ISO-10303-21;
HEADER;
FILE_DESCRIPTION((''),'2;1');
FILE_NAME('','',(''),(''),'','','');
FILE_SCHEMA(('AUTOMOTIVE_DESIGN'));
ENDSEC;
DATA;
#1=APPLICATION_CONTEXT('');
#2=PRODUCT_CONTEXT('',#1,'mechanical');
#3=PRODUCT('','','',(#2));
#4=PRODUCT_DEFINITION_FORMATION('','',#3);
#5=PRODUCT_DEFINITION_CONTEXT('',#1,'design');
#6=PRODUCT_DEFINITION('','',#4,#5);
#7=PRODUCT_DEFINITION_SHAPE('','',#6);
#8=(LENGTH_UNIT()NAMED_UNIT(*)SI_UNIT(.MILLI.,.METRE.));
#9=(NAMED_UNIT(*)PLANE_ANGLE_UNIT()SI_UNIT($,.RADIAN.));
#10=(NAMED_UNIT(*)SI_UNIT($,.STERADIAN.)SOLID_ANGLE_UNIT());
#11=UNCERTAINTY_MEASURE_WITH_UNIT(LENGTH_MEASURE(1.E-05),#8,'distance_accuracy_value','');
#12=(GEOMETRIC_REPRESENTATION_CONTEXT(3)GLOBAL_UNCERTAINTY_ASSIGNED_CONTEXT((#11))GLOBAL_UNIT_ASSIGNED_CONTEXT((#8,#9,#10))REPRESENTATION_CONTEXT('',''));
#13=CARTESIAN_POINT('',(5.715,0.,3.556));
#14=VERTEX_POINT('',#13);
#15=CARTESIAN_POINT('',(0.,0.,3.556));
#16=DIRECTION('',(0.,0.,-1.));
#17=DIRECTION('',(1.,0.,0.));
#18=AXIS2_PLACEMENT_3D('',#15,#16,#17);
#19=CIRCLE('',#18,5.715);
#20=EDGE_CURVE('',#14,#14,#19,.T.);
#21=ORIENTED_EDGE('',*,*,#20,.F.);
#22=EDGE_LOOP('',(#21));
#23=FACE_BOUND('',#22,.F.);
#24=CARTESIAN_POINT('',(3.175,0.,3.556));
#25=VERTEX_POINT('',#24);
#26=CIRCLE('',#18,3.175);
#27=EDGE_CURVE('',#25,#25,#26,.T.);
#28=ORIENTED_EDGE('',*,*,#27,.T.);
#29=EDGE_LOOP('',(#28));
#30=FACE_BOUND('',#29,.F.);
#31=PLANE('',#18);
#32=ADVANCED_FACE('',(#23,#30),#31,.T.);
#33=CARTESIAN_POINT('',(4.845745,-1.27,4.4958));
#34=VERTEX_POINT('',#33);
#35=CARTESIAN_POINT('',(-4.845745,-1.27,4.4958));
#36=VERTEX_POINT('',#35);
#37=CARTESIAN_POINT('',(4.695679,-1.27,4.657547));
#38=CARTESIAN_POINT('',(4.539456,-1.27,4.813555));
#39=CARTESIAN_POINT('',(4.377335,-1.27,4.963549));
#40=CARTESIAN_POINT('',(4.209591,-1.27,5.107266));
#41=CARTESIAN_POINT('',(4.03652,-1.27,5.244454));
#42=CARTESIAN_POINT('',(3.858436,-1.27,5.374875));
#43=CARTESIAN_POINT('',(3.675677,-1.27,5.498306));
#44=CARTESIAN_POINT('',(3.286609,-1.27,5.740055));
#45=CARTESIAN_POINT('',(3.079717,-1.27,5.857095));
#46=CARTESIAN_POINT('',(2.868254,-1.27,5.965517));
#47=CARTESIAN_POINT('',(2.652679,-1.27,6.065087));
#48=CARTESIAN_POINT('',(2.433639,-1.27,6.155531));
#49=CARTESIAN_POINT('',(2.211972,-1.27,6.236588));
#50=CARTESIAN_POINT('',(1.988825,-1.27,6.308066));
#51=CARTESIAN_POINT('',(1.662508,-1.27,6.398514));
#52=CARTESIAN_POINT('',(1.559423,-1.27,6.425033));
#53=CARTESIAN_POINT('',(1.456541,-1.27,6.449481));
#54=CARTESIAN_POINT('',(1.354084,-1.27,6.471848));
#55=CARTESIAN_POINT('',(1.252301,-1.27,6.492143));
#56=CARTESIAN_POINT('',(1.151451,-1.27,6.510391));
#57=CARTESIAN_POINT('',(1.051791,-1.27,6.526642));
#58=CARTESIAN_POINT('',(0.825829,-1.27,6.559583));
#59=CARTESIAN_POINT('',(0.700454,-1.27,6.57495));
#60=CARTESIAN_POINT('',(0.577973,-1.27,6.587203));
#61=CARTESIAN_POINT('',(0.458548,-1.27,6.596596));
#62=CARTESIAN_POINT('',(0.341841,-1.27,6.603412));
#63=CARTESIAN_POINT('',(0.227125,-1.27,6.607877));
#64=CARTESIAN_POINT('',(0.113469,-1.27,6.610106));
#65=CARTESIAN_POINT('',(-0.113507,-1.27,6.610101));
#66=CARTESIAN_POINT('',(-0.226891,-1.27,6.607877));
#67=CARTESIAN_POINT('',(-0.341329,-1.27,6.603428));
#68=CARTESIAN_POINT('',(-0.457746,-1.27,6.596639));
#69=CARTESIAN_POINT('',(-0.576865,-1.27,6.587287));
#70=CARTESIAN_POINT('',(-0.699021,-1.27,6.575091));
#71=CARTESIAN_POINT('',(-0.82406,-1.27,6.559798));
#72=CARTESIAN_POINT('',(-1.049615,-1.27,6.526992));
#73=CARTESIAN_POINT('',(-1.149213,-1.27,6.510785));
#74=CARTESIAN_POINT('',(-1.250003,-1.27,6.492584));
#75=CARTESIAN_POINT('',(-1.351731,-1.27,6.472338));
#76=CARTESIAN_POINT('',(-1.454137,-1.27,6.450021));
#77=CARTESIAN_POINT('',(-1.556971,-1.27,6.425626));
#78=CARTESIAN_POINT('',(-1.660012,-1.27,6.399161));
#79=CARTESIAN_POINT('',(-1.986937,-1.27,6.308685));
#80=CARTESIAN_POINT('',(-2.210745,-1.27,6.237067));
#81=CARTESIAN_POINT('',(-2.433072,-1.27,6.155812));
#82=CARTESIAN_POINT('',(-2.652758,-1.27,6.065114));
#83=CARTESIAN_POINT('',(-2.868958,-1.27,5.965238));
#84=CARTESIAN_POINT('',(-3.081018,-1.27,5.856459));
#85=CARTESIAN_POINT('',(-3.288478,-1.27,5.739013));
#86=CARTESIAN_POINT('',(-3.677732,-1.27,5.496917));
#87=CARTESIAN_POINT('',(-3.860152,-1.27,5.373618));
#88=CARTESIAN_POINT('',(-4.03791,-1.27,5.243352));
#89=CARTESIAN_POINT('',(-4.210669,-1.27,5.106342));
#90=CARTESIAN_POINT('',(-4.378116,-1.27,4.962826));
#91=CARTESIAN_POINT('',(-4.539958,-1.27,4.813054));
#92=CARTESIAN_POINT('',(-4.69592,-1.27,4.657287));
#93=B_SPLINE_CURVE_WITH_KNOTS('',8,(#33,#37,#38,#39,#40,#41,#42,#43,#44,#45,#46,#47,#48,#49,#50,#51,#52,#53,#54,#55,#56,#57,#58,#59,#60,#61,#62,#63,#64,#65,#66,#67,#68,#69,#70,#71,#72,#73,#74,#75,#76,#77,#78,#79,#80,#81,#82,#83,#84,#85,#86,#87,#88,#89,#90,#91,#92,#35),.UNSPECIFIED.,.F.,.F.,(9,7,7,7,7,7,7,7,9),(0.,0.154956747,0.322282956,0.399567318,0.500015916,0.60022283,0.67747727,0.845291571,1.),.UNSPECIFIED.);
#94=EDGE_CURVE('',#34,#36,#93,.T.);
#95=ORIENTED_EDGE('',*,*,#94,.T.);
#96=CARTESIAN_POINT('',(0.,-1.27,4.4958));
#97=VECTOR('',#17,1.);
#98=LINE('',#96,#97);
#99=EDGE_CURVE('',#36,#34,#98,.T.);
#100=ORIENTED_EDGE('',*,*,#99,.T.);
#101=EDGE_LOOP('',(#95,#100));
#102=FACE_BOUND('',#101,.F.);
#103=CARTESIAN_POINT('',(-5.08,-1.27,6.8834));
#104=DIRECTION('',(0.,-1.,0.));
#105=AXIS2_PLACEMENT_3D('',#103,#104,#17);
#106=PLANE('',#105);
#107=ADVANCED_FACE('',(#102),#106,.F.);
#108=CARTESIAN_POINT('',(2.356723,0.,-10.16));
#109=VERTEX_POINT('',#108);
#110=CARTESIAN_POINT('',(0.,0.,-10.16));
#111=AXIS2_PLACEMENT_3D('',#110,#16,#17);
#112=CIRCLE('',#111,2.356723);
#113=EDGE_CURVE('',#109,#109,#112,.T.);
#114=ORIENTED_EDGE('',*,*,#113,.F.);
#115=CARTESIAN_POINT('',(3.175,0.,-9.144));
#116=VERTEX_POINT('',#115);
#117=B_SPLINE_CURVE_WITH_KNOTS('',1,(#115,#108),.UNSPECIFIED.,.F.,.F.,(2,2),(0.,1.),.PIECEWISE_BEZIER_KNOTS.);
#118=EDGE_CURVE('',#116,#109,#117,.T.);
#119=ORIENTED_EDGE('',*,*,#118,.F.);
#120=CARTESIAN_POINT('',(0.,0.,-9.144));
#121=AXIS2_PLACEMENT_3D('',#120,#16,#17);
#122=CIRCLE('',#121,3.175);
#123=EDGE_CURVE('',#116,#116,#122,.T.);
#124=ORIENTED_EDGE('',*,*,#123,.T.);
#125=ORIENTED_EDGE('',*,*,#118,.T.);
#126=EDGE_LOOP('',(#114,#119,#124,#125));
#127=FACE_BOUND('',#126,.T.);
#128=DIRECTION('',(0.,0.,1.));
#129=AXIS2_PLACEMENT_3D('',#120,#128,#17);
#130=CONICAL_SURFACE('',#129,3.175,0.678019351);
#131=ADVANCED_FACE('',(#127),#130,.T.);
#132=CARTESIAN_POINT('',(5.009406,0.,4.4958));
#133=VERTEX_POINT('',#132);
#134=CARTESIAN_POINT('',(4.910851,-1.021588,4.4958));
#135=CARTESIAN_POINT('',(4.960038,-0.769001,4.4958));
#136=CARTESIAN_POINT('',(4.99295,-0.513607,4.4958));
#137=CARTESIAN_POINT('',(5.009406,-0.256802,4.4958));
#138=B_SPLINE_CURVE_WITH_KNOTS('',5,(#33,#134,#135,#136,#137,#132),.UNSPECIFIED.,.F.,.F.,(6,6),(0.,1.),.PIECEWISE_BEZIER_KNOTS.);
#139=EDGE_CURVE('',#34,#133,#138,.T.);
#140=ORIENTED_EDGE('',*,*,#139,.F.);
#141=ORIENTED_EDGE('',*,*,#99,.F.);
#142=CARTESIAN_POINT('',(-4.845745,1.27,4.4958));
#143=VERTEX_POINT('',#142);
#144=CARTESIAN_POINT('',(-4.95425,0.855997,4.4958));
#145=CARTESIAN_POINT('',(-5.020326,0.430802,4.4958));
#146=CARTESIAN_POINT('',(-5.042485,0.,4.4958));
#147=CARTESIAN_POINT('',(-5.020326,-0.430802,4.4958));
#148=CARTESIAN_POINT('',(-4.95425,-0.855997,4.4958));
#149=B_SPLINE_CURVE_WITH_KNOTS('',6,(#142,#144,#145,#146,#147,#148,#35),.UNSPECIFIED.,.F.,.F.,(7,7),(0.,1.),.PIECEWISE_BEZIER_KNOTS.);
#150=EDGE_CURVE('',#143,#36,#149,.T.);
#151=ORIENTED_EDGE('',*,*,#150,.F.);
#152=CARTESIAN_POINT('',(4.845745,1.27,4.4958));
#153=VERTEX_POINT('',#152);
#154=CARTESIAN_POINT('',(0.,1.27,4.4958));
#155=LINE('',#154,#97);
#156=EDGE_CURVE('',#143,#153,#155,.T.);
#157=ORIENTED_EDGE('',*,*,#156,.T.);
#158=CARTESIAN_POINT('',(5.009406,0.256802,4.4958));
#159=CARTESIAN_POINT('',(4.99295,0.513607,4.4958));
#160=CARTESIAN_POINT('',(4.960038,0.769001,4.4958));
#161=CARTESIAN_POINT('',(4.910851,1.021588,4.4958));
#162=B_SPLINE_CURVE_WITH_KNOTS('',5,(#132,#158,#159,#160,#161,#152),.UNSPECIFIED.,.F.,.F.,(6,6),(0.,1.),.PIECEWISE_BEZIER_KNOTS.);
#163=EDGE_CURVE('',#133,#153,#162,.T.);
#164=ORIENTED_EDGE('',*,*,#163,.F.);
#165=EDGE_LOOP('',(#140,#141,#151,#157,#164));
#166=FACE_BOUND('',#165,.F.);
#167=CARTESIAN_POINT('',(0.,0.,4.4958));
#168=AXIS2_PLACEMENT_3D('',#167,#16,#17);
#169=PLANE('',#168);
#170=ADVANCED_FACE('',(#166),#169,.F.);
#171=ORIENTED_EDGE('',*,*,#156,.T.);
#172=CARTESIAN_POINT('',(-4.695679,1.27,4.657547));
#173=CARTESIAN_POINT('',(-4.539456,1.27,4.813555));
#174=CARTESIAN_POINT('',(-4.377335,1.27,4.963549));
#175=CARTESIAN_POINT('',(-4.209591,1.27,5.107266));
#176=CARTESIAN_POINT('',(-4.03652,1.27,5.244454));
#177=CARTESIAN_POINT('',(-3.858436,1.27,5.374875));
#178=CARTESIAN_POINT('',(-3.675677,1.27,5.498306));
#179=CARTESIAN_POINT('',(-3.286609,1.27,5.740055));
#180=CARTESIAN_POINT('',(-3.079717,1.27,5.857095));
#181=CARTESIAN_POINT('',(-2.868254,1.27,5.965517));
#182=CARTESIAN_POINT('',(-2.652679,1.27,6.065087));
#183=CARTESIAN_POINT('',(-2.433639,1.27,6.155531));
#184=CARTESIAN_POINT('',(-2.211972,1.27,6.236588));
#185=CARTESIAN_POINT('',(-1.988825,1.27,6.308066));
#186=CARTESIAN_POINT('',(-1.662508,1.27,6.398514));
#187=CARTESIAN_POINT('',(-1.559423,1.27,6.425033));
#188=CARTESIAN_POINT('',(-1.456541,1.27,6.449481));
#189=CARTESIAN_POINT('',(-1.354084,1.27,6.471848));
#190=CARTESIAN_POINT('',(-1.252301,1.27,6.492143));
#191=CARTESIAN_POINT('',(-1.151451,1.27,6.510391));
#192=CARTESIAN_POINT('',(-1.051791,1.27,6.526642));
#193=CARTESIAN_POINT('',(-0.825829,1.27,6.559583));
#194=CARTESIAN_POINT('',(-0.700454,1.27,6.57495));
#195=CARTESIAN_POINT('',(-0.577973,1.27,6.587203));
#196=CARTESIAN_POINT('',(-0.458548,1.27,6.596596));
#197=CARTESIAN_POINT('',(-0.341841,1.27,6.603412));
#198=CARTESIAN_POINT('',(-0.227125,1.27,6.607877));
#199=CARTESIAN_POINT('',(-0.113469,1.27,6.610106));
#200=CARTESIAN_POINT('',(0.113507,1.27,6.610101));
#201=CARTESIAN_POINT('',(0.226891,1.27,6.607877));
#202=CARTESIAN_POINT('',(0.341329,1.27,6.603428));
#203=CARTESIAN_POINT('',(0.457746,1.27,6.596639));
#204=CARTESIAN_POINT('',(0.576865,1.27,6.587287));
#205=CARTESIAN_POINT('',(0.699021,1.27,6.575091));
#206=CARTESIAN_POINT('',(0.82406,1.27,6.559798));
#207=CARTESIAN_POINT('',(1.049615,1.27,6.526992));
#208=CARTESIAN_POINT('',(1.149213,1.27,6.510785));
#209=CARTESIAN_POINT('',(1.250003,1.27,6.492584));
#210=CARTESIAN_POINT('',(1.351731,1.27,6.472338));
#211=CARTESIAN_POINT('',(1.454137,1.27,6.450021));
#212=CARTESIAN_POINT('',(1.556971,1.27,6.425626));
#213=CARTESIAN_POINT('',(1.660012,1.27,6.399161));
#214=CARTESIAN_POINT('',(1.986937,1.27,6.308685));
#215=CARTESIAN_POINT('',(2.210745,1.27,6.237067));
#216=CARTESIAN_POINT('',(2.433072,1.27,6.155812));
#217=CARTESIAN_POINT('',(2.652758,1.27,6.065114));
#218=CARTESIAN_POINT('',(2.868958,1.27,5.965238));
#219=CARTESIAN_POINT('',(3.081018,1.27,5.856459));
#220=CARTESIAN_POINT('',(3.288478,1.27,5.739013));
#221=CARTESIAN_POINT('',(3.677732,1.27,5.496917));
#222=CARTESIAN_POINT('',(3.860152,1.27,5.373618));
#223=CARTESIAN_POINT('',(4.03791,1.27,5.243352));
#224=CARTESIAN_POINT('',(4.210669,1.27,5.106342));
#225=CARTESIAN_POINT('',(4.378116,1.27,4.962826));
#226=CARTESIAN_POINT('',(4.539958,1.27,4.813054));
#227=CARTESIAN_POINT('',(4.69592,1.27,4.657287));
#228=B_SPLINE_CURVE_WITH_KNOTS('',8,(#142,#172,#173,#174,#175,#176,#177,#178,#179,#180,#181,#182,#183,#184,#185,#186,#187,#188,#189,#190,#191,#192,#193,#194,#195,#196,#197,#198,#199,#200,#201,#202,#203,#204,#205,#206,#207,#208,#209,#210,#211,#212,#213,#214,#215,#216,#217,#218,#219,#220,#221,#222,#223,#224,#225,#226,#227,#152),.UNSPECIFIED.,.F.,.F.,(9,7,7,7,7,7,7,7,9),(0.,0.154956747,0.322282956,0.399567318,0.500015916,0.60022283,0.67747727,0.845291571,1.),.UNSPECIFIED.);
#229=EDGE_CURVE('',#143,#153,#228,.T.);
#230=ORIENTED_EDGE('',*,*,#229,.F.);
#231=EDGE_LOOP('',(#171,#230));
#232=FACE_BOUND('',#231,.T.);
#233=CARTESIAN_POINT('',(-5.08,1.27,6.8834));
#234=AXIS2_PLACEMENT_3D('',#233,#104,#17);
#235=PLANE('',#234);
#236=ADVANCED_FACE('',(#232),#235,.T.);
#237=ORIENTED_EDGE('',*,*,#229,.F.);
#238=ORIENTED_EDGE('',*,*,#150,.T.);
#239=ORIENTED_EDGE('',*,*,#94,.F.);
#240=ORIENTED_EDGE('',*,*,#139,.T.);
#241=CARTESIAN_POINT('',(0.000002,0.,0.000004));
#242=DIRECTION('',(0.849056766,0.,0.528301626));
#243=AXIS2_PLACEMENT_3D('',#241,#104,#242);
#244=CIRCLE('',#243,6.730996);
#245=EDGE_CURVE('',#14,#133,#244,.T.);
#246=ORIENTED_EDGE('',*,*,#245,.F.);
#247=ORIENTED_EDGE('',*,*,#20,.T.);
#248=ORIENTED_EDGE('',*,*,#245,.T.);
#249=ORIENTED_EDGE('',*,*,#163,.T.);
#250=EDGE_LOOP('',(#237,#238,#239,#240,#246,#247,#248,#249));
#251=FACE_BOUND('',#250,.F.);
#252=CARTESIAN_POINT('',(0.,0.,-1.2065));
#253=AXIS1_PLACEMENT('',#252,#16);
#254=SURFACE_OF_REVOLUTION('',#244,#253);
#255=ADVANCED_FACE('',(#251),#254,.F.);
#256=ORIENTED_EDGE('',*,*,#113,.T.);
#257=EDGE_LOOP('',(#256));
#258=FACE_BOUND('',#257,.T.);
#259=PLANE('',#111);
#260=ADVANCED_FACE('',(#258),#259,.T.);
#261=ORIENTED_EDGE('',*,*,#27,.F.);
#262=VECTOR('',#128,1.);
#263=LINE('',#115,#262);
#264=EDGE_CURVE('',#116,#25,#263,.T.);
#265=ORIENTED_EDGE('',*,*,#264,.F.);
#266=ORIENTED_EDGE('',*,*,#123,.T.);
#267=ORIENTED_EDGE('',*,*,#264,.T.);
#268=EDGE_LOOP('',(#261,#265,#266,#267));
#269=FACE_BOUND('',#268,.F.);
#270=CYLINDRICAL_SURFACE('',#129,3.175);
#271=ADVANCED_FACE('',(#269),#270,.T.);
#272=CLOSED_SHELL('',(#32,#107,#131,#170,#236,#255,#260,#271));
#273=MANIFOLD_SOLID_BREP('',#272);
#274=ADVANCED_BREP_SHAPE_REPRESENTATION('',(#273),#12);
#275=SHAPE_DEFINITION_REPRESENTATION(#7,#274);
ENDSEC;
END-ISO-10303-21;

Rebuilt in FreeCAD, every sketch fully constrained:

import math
import FreeCAD as App
import Part
import Sketcher
from FreeCAD import Vector
Q = App.Units.Quantity

doc = App.newDocument("Part")
body = doc.addObject("PartDesign::Body", "Body")

# Sketch on XZ plane
sketch1 = doc.addObject("Sketcher::SketchObject", "Sketch")
body.addObject(sketch1)
sketch1.AttachmentSupport = (doc.XZ_Plane, [""])
sketch1.MapMode = "FlatFace"
sketch1.addGeometry([
    Part.ArcOfCircle(Part.Circle(Vector(0, 0, 0), Vector(0, 0, 1), 6.7), math.radians(32), math.radians(90)),  # 0
    Part.LineSegment(Vector(0, 6.7, 0), Vector(0, -9.1, 0)),  # 1
    Part.LineSegment(Vector(0, -9.1, 0), Vector(3.2, -9.1, 0)),  # 2
    Part.LineSegment(Vector(3.2, -9.1, 0), Vector(3.2, 3.6, 0)),  # 3
    Part.LineSegment(Vector(3.2, 3.6, 0), Vector(5.7, 3.6, 0)),  # 4
], False)
sketch1.addConstraint([
    Sketcher.Constraint("Coincident", 0, 2, 1, 1),
    Sketcher.Constraint("Coincident", 1, 2, 2, 1),
    Sketcher.Constraint("Coincident", 2, 2, 3, 1),
    Sketcher.Constraint("Coincident", 3, 2, 4, 1),
    Sketcher.Constraint("Coincident", 4, 2, 0, 1),
    Sketcher.Constraint("Vertical", 1),
    Sketcher.Constraint("Horizontal", 2),
    Sketcher.Constraint("Vertical", 3),
    Sketcher.Constraint("Horizontal", 4),
    Sketcher.Constraint("Coincident", 0, 3, -1, 1),
    Sketcher.Constraint("PointOnObject", 0, 2, -2),
    Sketcher.Constraint("DistanceX", 4, 1, 4, 2, Q("0.1 in")),
    Sketcher.Constraint("DistanceY", 3, 1, 3, 2, Q("0.5 in")),
    Sketcher.Constraint("Radius", 0, Q("0.2649999 in")),
    Sketcher.Constraint("DistanceX", 2, 1, 2, 2, Q("0.125 in")),
])
revolution = doc.addObject("PartDesign::Revolution", "Revolution")
body.addObject(revolution)
revolution.Profile = sketch1
revolution.ReferenceAxis = (sketch1, ["V_Axis"])
revolution.Angle = 360

# Sketch on XY plane
sketch2 = doc.addObject("Sketcher::SketchObject", "Sketch001")
body.addObject(sketch2)
sketch2.AttachmentSupport = (doc.XY_Plane, [""])
sketch2.MapMode = "FlatFace"
sketch2.AttachmentOffset = App.Placement(Vector(0, 0, -0.36 * 25.4), App.Rotation())
sketch2.addGeometry(Part.Circle(Vector(0, 0, 0), Vector(0, 0, 1), 3.2), False)
sketch2.addConstraint([
    Sketcher.Constraint("Coincident", 0, 3, -1, 1),
    Sketcher.Constraint("Diameter", 0, Q("0.25 in")),
])

# Sketch on XY plane
sketch3 = doc.addObject("Sketcher::SketchObject", "Sketch002")
body.addObject(sketch3)
sketch3.AttachmentSupport = (doc.XY_Plane, [""])
sketch3.MapMode = "FlatFace"
sketch3.AttachmentOffset = App.Placement(Vector(0, 0, -0.4 * 25.4), App.Rotation())
sketch3.addGeometry(Part.Circle(Vector(0, 0, 0), Vector(0, 0, 1), 2.4), False)
sketch3.addConstraint([
    Sketcher.Constraint("Coincident", 0, 3, -1, 1),
    Sketcher.Constraint("Diameter", 0, Q("4.713446 mm")),
])

additiveloft = doc.addObject("PartDesign::AdditiveLoft", "AdditiveLoft")
body.addObject(additiveloft)
additiveloft.Profile = sketch2
additiveloft.Sections = [sketch3]

# Sketch on XY plane
sketch4 = doc.addObject("Sketcher::SketchObject", "Sketch003")
body.addObject(sketch4)
sketch4.AttachmentSupport = (doc.XY_Plane, [""])
sketch4.MapMode = "FlatFace"
sketch4.AttachmentOffset = App.Placement(Vector(0, 0, 0.271 * 25.4), App.Rotation())
sketch4.addGeometry([
    Part.LineSegment(Vector(-5.1, -1.3, 0), Vector(-5.1, 1.3, 0)),
    Part.LineSegment(Vector(-5.1, 1.3, 0), Vector(5.1, 1.3, 0)),
    Part.LineSegment(Vector(5.1, 1.3, 0), Vector(5.1, -1.3, 0)),
    Part.LineSegment(Vector(5.1, -1.3, 0), Vector(-5.1, -1.3, 0)),
], False)
sketch4.addConstraint([
    Sketcher.Constraint("Coincident", 0, 2, 1, 1),
    Sketcher.Constraint("Coincident", 1, 2, 2, 1),
    Sketcher.Constraint("Coincident", 2, 2, 3, 1),
    Sketcher.Constraint("Coincident", 3, 2, 0, 1),
    Sketcher.Constraint("Vertical", 0),
    Sketcher.Constraint("Horizontal", 1),
    Sketcher.Constraint("Vertical", 2),
    Sketcher.Constraint("Horizontal", 3),
    Sketcher.Constraint("Symmetric", 0, 2, 2, 2, -1, 1),
    Sketcher.Constraint("DistanceX", 1, 1, 1, 2, Q("0.4 in")),
    Sketcher.Constraint("DistanceY", 0, 1, 0, 2, Q("0.1 in")),
])
pocket1 = doc.addObject("PartDesign::Pocket", "Pocket")
body.addObject(pocket1)
pocket1.Profile = sketch4
pocket1.Length = Q("0.094 in")

doc.recompute()
